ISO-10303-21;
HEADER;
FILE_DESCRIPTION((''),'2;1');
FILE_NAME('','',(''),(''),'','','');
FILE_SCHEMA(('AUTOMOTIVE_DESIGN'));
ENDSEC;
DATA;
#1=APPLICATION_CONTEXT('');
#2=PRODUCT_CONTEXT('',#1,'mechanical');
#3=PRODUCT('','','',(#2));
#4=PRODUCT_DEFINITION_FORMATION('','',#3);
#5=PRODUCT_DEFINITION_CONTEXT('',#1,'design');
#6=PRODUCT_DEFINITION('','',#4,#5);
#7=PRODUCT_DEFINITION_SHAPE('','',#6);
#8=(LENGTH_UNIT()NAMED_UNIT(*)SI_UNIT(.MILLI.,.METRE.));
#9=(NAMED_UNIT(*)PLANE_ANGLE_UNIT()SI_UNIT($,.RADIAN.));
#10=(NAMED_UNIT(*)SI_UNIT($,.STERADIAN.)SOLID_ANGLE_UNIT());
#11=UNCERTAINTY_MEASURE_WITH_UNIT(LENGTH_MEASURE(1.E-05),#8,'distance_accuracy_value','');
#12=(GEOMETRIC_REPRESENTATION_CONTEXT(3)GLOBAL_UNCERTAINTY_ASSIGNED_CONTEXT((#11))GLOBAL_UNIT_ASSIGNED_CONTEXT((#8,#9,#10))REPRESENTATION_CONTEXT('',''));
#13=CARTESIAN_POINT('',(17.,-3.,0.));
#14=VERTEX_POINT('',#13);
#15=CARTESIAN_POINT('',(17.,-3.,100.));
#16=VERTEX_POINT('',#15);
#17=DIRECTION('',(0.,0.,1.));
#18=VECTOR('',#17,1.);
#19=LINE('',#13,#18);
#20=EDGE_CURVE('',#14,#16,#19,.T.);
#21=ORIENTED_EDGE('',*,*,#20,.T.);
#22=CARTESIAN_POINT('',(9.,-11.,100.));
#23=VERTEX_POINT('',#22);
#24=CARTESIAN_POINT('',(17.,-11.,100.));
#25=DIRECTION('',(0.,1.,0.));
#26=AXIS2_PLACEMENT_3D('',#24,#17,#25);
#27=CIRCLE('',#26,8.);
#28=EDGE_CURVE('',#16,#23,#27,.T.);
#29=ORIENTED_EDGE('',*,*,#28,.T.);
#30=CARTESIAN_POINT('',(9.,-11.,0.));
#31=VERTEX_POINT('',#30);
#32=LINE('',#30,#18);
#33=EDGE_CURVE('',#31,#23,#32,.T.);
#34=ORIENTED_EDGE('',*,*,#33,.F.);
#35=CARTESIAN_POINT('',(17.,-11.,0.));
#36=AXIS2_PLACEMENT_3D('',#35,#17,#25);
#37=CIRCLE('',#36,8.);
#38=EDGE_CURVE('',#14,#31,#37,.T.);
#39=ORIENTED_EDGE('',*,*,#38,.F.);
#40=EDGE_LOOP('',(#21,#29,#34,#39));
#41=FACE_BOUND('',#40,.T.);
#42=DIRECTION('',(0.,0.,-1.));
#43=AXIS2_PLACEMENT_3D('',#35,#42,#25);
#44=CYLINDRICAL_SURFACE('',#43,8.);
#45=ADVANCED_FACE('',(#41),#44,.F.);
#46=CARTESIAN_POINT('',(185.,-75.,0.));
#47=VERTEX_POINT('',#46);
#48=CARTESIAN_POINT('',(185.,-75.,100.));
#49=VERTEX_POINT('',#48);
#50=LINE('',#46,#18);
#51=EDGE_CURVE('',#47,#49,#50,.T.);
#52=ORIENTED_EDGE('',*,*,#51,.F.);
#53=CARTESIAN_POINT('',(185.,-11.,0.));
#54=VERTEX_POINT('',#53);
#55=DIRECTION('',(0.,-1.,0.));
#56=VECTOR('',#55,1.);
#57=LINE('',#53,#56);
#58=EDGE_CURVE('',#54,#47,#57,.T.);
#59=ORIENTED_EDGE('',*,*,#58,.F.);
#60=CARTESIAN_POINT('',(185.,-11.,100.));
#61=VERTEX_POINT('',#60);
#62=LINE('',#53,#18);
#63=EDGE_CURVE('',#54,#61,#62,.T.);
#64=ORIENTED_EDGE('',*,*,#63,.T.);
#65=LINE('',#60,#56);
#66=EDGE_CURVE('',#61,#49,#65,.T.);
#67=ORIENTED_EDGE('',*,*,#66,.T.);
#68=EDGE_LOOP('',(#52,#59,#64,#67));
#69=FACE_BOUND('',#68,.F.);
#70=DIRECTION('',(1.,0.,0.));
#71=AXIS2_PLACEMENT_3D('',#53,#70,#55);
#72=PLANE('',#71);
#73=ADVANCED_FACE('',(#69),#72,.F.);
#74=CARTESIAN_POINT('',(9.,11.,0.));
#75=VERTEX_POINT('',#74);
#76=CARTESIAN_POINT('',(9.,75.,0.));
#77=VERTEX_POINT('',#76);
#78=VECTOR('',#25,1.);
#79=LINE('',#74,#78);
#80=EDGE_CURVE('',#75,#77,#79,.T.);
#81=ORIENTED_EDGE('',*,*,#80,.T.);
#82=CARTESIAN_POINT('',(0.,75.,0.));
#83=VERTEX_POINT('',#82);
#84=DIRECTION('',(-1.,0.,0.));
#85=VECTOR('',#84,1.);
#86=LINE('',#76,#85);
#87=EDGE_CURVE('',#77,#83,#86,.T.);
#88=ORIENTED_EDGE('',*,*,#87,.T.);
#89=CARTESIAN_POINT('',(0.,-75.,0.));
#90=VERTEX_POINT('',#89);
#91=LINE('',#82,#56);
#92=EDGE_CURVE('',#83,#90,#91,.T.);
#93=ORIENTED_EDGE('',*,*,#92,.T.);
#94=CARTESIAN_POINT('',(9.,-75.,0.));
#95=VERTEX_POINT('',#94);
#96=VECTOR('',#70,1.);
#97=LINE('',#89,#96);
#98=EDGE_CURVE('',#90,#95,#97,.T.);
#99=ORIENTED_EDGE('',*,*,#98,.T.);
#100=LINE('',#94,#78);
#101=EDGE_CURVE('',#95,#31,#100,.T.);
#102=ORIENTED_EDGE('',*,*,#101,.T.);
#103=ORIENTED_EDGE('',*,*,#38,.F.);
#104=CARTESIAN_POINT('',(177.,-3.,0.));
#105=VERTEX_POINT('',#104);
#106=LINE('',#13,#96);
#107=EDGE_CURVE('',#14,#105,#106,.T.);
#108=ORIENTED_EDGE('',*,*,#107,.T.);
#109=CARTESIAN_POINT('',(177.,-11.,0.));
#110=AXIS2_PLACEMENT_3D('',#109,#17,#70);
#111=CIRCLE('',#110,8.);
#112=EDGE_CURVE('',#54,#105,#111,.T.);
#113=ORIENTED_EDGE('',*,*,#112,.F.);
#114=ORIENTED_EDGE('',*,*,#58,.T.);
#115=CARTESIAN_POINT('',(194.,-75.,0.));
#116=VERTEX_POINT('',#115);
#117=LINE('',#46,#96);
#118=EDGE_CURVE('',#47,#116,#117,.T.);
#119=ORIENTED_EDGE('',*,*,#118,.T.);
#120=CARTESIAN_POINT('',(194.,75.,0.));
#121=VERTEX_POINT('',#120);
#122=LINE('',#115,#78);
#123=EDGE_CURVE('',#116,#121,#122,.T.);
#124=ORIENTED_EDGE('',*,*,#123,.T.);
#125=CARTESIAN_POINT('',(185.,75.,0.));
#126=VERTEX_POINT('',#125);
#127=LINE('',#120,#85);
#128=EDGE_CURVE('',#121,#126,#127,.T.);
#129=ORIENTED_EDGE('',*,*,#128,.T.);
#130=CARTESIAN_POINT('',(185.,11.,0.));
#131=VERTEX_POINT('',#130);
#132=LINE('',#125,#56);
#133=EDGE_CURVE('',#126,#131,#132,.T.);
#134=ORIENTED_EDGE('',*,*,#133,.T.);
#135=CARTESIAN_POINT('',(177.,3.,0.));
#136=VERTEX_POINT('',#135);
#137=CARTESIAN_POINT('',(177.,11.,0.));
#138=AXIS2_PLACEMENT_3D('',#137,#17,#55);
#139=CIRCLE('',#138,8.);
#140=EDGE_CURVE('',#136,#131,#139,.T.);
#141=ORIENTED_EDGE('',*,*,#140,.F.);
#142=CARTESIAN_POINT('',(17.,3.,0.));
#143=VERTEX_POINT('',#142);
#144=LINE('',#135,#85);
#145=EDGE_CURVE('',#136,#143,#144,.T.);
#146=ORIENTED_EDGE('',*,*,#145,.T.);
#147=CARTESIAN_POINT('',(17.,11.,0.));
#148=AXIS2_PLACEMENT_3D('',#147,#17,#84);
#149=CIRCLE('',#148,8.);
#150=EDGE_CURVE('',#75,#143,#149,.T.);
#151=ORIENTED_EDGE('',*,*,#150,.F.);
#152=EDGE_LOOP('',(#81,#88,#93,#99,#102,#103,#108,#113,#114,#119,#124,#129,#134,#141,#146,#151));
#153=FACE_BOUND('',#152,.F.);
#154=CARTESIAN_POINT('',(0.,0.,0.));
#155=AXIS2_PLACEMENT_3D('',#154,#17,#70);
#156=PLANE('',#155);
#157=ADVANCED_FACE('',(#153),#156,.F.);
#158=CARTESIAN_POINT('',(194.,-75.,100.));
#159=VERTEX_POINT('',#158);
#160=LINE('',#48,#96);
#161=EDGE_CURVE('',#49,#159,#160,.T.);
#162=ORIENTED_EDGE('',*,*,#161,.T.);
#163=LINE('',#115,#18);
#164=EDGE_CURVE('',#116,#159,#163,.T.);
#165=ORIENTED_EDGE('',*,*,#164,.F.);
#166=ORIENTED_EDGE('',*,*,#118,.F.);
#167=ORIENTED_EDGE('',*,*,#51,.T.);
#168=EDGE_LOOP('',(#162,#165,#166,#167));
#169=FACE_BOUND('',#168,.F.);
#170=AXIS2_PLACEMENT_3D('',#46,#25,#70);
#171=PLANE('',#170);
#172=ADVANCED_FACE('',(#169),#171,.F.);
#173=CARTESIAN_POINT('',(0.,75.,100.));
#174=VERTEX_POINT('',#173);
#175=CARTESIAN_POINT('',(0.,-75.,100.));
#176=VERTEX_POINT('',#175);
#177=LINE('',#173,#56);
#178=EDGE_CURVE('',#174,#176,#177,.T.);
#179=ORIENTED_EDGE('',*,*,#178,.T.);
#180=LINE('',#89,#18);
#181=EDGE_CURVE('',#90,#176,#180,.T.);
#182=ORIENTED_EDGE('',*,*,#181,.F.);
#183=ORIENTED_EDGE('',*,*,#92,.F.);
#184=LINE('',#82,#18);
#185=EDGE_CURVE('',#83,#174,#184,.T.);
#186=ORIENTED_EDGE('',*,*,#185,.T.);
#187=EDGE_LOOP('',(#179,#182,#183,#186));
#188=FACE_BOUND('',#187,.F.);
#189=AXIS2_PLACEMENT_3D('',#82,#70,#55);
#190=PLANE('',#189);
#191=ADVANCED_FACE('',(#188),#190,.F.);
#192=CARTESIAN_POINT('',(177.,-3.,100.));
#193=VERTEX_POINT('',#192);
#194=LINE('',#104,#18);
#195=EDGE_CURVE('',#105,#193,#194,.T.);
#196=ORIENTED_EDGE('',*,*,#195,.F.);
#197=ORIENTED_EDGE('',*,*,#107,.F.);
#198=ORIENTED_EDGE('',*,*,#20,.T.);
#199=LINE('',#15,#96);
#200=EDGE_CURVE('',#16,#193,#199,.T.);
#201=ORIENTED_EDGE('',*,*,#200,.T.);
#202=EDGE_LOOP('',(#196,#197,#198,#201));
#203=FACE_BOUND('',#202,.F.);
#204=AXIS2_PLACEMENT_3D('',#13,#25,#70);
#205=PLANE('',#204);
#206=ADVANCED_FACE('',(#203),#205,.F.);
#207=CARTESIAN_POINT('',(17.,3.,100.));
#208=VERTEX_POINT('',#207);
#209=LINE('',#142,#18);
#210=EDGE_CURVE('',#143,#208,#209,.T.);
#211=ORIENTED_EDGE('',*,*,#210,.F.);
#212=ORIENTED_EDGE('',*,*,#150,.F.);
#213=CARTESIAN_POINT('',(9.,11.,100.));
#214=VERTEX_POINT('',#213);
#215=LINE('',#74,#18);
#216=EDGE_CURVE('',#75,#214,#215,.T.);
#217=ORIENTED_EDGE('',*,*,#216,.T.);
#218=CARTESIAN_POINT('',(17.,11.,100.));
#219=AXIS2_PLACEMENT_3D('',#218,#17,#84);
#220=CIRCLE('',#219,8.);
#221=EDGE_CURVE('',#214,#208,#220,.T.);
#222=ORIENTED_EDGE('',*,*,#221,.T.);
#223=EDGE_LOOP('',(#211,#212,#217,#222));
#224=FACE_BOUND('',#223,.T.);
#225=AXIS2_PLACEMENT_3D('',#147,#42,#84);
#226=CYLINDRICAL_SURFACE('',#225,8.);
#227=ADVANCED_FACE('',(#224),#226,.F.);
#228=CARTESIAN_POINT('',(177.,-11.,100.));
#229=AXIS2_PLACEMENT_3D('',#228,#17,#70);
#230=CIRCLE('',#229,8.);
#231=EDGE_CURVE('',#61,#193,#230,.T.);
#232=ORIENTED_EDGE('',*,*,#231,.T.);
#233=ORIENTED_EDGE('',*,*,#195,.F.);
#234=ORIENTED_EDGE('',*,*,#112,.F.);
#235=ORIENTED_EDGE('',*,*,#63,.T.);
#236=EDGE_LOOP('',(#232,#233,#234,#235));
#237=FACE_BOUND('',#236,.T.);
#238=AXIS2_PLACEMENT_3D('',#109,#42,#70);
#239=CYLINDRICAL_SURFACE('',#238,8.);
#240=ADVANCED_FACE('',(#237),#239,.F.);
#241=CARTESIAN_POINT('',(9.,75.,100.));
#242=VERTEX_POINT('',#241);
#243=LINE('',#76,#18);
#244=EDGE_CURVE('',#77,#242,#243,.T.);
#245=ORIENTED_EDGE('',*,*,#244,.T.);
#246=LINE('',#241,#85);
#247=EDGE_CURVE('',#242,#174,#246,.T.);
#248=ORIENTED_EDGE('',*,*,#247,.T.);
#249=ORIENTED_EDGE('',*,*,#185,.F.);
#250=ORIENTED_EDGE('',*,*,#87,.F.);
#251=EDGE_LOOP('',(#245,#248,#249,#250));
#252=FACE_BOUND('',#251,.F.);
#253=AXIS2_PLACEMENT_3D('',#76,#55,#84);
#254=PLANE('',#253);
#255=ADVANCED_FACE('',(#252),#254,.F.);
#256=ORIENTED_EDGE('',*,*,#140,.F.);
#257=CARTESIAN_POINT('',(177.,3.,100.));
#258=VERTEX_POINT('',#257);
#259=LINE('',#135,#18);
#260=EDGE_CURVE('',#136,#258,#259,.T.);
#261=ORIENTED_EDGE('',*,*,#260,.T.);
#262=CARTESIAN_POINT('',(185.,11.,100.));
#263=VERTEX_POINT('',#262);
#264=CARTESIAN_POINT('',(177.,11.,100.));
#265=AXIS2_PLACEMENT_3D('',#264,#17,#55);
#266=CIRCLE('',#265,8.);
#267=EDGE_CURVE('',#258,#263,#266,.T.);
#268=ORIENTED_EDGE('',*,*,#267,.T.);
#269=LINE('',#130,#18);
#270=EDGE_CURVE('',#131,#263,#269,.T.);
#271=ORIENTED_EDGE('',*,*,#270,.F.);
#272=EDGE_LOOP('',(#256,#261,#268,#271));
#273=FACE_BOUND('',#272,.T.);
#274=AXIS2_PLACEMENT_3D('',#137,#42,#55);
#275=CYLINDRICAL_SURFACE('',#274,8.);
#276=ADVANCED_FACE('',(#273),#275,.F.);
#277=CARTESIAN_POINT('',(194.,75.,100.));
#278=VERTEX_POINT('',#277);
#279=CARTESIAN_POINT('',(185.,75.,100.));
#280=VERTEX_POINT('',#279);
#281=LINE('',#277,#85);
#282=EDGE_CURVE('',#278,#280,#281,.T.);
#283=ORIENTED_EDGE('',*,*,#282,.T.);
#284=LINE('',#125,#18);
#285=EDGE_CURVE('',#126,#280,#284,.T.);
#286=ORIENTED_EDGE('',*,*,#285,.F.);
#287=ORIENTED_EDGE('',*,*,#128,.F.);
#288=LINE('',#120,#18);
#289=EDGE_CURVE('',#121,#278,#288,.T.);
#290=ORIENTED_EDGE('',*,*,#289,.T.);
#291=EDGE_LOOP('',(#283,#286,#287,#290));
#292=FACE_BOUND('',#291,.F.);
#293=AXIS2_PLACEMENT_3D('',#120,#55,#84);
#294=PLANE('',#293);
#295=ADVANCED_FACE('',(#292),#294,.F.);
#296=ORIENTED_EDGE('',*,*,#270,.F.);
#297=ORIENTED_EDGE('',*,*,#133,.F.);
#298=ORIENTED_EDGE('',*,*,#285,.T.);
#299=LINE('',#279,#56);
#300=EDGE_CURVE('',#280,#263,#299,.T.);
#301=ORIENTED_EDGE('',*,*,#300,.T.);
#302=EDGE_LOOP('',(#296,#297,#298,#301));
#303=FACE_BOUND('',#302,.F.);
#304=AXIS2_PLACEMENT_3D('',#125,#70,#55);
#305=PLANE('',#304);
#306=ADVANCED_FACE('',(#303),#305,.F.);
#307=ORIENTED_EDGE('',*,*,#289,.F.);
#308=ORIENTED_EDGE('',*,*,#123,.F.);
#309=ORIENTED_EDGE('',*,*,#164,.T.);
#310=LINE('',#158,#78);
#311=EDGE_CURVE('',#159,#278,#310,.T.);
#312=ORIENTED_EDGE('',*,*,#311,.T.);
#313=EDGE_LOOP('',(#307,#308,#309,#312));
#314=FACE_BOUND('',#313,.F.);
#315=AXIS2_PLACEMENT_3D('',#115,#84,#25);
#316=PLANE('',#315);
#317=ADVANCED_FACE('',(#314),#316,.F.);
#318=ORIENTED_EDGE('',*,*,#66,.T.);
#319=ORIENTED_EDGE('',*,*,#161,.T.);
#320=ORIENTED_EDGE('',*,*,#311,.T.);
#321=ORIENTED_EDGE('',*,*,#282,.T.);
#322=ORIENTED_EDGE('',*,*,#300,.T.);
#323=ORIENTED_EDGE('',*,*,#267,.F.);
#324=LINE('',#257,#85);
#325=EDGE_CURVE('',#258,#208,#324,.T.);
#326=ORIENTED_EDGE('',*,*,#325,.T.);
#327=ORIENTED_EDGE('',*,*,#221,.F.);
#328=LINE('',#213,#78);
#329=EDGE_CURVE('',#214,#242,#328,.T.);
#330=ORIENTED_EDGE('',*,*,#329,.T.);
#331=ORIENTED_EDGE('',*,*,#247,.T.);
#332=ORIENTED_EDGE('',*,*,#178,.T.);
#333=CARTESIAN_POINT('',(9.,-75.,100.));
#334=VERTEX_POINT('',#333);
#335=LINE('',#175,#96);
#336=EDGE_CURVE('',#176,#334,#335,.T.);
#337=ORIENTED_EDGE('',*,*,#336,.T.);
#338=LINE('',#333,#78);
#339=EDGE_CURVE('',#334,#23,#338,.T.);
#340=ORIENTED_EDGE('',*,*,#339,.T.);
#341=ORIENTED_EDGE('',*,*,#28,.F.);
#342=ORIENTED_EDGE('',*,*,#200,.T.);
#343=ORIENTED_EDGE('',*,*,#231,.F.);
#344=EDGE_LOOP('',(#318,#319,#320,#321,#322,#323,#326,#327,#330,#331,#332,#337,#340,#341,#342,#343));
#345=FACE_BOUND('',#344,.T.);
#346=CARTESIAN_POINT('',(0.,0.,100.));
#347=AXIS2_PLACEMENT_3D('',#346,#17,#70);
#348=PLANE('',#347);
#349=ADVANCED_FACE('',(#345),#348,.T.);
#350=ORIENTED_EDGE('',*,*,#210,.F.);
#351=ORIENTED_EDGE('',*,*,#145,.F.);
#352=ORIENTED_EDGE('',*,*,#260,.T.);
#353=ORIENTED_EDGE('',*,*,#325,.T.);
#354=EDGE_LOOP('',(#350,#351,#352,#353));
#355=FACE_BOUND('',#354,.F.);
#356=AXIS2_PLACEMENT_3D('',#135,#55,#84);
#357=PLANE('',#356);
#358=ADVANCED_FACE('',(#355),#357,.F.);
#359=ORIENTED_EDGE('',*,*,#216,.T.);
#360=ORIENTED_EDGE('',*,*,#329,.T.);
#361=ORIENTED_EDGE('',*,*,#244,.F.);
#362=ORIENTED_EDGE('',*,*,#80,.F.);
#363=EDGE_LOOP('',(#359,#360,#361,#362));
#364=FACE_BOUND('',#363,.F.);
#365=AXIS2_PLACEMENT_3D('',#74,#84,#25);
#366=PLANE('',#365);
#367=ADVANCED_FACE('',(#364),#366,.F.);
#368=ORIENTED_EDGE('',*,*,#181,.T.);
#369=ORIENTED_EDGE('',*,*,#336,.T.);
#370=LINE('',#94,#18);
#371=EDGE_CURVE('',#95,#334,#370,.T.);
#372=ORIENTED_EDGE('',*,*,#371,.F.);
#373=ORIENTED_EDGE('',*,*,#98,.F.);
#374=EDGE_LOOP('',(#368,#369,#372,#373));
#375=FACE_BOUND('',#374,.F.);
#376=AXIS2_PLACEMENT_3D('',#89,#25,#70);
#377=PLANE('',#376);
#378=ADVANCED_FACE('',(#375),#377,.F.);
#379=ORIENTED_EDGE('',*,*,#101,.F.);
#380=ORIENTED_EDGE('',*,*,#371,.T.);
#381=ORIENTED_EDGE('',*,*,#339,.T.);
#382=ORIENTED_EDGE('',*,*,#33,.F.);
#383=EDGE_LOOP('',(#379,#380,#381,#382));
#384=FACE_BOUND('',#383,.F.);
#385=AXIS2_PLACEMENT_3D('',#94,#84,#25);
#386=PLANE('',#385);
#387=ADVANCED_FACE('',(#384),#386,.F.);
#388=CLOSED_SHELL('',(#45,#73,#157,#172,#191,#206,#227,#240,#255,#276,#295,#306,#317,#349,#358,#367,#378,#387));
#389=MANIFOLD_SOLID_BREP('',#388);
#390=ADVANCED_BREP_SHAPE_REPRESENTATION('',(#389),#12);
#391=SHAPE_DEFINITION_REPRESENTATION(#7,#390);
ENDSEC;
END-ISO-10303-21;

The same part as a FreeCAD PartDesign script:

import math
import FreeCAD as App
import Part
import Sketcher

doc = App.newDocument("Part")
body = doc.addObject("PartDesign::Body", "Body")

# Sketch on XY plane
sketch1 = body.newObject("Sketcher::SketchObject", "Sketch")
sketch1.AttachmentSupport = (doc.getObject("XY_Plane"), [""])
sketch1.MapMode = "FlatFace"
sketch1.addGeometry([
    Part.LineSegment(App.Vector(9, 75, 0), App.Vector(0, 75, 0)),  # 0
    Part.LineSegment(App.Vector(0, 75, 0), App.Vector(0, -75, 0)),  # 1
    Part.LineSegment(App.Vector(0, -75, 0), App.Vector(9, -75, 0)),  # 2
    Part.LineSegment(App.Vector(9, -75, 0), App.Vector(9, -11, 0)),  # 3
    Part.ArcOfCircle(Part.Circle(App.Vector(17, -11, 0), App.Vector(0, 0, 1), 8), math.radians(90), math.radians(180)),  # 4
    Part.LineSegment(App.Vector(17, -3, 0), App.Vector(177, -3, 0)),  # 5
    Part.ArcOfCircle(Part.Circle(App.Vector(177, -11, 0), App.Vector(0, 0, 1), 8), math.radians(0), math.radians(90)),  # 6
    Part.LineSegment(App.Vector(185, -11, 0), App.Vector(185, -75, 0)),  # 7
    Part.LineSegment(App.Vector(185, -75, 0), App.Vector(194, -75, 0)),  # 8
    Part.LineSegment(App.Vector(194, -75, 0), App.Vector(194, 75, 0)),  # 9
    Part.LineSegment(App.Vector(194, 75, 0), App.Vector(185, 75, 0)),  # 10
    Part.LineSegment(App.Vector(185, 75, 0), App.Vector(185, 11, 0)),  # 11
    Part.ArcOfCircle(Part.Circle(App.Vector(177, 11, 0), App.Vector(0, 0, 1), 8), math.radians(-90), math.radians(0)),  # 12
    Part.LineSegment(App.Vector(177, 3, 0), App.Vector(17, 3, 0)),  # 13
    Part.ArcOfCircle(Part.Circle(App.Vector(17, 11, 0), App.Vector(0, 0, 1), 8), math.radians(180), math.radians(270)),  # 14
    Part.LineSegment(App.Vector(9, 11, 0), App.Vector(9, 75, 0)),  # 15
], False)
sketch1.addConstraint([
    Sketcher.Constraint("Coincident", 0, 2, 1, 1),
    Sketcher.Constraint("Coincident", 1, 2, 2, 1),
    Sketcher.Constraint("Coincident", 2, 2, 3, 1),
    Sketcher.Constraint("Tangent", 3, 2, 4, 2),
    Sketcher.Constraint("Tangent", 4, 1, 5, 1),
    Sketcher.Constraint("Tangent", 5, 2, 6, 2),
    Sketcher.Constraint("Tangent", 6, 1, 7, 1),
    Sketcher.Constraint("Coincident", 7, 2, 8, 1),
    Sketcher.Constraint("Coincident", 8, 2, 9, 1),
    Sketcher.Constraint("Coincident", 9, 2, 10, 1),
    Sketcher.Constraint("Coincident", 10, 2, 11, 1),
    Sketcher.Constraint("Tangent", 11, 2, 12, 2),
    Sketcher.Constraint("Tangent", 12, 1, 13, 1),
    Sketcher.Constraint("Tangent", 13, 2, 14, 2),
    Sketcher.Constraint("Tangent", 14, 1, 15, 1),
    Sketcher.Constraint("Coincident", 15, 2, 0, 1),
    Sketcher.Constraint("Horizontal", 0),
    Sketcher.Constraint("Vertical", 1),
    Sketcher.Constraint("Horizontal", 2),
    Sketcher.Constraint("Vertical", 3),
    Sketcher.Constraint("Horizontal", 5),
    Sketcher.Constraint("Vertical", 7),
    Sketcher.Constraint("Horizontal", 8),
    Sketcher.Constraint("Vertical", 9),
    Sketcher.Constraint("Horizontal", 10),
    Sketcher.Constraint("Vertical", 11),
    Sketcher.Constraint("Horizontal", 13),
    Sketcher.Constraint("Vertical", 15),
    Sketcher.Constraint("Equal", 4, 6),
    Sketcher.Constraint("Equal", 6, 12),
    Sketcher.Constraint("Equal", 12, 14),
    Sketcher.Constraint("Symmetric", 0, 2, 1, 2, -1, 1),
    Sketcher.Constraint("Symmetric", 6, 3, 12, 3, -1),
    Sketcher.Constraint("Horizontal", 2, 2, 7, 2),
    Sketcher.Constraint("Horizontal", 0, 2, 9, 2),
    Sketcher.Constraint("Vertical", 4, 3, 14, 3),
    Sketcher.Constraint("Equal", 2, 8),
    Sketcher.Constraint("Radius", 4, 8.0),
    Sketcher.Constraint("DistanceX", 0, 2, 0, 1, 9.0),
    Sketcher.Constraint("DistanceX", 5, 1, 5, 2, 160.0),
    Sketcher.Constraint("DistanceY", 1, 2, 1, 1, 150.0),
    Sketcher.Constraint("DistanceY", 3, 1, 3, 2, 64.0),
])
pad1 = body.newObject("PartDesign::Pad", "Pad")
pad1.Profile = sketch1
pad1.Length = 100

doc.recompute()
